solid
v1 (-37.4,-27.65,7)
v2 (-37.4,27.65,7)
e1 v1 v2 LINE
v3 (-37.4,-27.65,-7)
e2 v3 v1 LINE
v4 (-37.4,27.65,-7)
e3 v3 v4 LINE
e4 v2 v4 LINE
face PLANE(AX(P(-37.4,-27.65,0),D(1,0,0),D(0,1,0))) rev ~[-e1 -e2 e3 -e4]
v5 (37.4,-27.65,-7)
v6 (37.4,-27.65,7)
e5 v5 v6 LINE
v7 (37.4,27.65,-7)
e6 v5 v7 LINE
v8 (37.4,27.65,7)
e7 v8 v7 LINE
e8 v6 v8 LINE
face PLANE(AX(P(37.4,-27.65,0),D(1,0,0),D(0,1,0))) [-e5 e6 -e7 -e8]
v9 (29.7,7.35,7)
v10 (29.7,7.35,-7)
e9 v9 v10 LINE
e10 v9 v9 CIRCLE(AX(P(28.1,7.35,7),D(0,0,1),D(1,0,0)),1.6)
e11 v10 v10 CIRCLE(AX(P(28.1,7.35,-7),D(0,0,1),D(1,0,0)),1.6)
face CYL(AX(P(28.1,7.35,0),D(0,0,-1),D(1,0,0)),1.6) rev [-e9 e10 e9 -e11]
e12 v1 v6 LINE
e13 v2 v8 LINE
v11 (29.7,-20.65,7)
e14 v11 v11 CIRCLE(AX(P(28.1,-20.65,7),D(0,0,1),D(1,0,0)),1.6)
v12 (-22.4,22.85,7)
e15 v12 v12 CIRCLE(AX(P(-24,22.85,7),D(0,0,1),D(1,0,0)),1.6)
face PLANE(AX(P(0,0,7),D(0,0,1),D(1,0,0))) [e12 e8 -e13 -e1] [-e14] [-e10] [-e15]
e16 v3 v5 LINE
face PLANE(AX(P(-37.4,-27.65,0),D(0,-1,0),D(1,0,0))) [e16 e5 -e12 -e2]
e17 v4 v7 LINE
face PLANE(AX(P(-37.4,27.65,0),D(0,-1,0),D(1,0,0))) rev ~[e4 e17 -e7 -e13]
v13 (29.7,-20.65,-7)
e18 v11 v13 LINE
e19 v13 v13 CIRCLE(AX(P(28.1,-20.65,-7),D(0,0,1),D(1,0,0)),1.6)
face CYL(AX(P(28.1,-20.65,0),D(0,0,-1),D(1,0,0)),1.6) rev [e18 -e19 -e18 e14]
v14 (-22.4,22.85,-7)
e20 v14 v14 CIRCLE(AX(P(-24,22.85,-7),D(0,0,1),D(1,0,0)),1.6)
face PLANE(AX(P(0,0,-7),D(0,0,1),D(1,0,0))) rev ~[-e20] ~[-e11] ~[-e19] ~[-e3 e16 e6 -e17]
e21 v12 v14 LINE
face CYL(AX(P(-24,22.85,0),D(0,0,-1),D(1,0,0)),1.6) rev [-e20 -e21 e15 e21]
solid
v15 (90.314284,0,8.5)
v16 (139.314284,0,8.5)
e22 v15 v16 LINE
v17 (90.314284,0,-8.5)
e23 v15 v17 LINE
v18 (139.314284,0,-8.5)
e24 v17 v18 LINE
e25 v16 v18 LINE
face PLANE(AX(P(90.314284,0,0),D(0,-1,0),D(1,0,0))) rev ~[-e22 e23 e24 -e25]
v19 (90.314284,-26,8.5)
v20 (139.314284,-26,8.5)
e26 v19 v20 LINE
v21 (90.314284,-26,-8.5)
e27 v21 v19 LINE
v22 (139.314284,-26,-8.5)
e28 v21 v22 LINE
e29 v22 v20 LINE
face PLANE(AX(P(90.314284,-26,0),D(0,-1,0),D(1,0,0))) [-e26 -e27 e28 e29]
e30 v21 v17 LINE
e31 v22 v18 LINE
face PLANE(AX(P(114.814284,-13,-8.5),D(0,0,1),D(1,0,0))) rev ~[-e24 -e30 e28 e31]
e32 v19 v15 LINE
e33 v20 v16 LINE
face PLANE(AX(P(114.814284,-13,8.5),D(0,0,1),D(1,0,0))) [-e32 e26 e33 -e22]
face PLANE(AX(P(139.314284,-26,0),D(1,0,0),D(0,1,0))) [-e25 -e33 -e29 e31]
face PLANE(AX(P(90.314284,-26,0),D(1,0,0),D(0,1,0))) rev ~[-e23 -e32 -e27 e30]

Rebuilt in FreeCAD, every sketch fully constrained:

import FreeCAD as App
import Part
import Sketcher

V = App.Vector

doc = App.newDocument("Part")
params = doc.addObject("Spreadsheet::Sheet", "Params")
for row, (alias, value) in enumerate([
    ("sketch1_diameter", "3.2 mm"),
    ("sketch1_width", "74.8 mm"),
    ("sketch1_height", "55.3 mm"),
    ("pad1_length", "14 mm"),
    ("sketch2_width", "49 mm"),
    ("sketch2_height", "26 mm"),
    ("pad2_length", "17 mm"),
], start=1):
    params.set(f"A{row}", alias)
    params.set(f"B{row}", "=" + value)
    params.setAlias(f"B{row}", alias)

body = doc.addObject("PartDesign::Body", "Body")

sketch1 = body.newObject("Sketcher::SketchObject", "Sketch")
sketch1.AttachmentSupport = (doc.getObject("XY_Plane"), [""])
sketch1.MapMode = "FlatFace"
sketch1.addGeometry([
    Part.LineSegment(V(-37.4, 27.6, 0), V(-37.4, -27.6, 0)),
    Part.LineSegment(V(-37.4, -27.6, 0), V(37.4, -27.6, 0)),
    Part.LineSegment(V(37.4, -27.6, 0), V(37.4, 27.6, 0)),
    Part.LineSegment(V(37.4, 27.6, 0), V(-37.4, 27.6, 0)),
    Part.Circle(V(28.1, -20.6, 0), V(0, 0, 1), 1.6),
    Part.Circle(V(-24, 22.9, 0), V(0, 0, 1), 1.6),
    Part.Circle(V(28.1, 7.3, 0), V(0, 0, 1), 1.6),
], False)
sketch1.addConstraint([
    Sketcher.Constraint("Coincident", 0, 2, 1, 1),
    Sketcher.Constraint("Coincident", 1, 2, 2, 1),
    Sketcher.Constraint("Coincident", 2, 2, 3, 1),
    Sketcher.Constraint("Coincident", 3, 2, 0, 1),
    Sketcher.Constraint("Vertical", 0),
    Sketcher.Constraint("Horizontal", 1),
    Sketcher.Constraint("Vertical", 2),
    Sketcher.Constraint("Horizontal", 3),
    Sketcher.Constraint("Equal", 4, 5),
    Sketcher.Constraint("Equal", 5, 6),
    Sketcher.Constraint("Symmetric", 0, 2, 2, 2, -1, 1),
    Sketcher.Constraint("Vertical", 4, 3, 6, 3),
    Sketcher.Constraint("Diameter", 4, 3.2),
    Sketcher.Constraint("DistanceX", 1, 1, 1, 2, 74.8),
    Sketcher.Constraint("DistanceY", 0, 2, 0, 1, 55.3),
    Sketcher.Constraint("DistanceX", 5, 3, -1, 1, 24.0),
    Sketcher.Constraint("DistanceY", 4, 3, 6, 3, 28.0),
    Sketcher.Constraint("DistanceY", 0, 2, 4, 3, 7.0),
    Sketcher.Constraint("DistanceX", -1, 1, 4, 3, 28.1),
    Sketcher.Constraint("DistanceY", 4, 3, 5, 3, 43.5),
])
sketch1.setExpression("Constraints[12]", "Params.sketch1_diameter")
sketch1.setExpression("Constraints[13]", "Params.sketch1_width")
sketch1.setExpression("Constraints[14]", "Params.sketch1_height")
pad1 = body.newObject("PartDesign::Pad", "Pad")
pad1.Profile = sketch1
pad1.setExpression("Length", "Params.pad1_length")
pad1.Midplane = True
body2 = doc.addObject("PartDesign::Body", "Body001")

sketch2 = body2.newObject("Sketcher::SketchObject", "Sketch001")
sketch2.AttachmentSupport = (doc.getObject("XY_Plane001"), [""])
sketch2.MapMode = "FlatFace"
sketch2.addGeometry([
    Part.LineSegment(V(90, 0, 0), V(90, -26, 0)),
    Part.LineSegment(V(90, -26, 0), V(139, -26, 0)),
    Part.LineSegment(V(139, -26, 0), V(139, 0, 0)),
    Part.LineSegment(V(139, 0, 0), V(90, 0, 0)),
], False)
sketch2.addConstraint([
    Sketcher.Constraint("Coincident", 0, 2, 1, 1),
    Sketcher.Constraint("Coincident", 1, 2, 2, 1),
    Sketcher.Constraint("Coincident", 2, 2, 3, 1),
    Sketcher.Constraint("Coincident", 3, 2, 0, 1),
    Sketcher.Constraint("Vertical", 0),
    Sketcher.Constraint("Horizontal", 1),
    Sketcher.Constraint("Vertical", 2),
    Sketcher.Constraint("Horizontal", 3),
    Sketcher.Constraint("PointOnObject", 2, 2, -1),
    Sketcher.Constraint("DistanceX", 1, 1, 1, 2, 49.0),
    Sketcher.Constraint("DistanceY", 0, 2, 0, 1, 26.0),
    Sketcher.Constraint("DistanceX", -1, 1, 0, 2, 90.314284),
])
sketch2.setExpression("Constraints[9]", "Params.sketch2_width")
sketch2.setExpression("Constraints[10]", "Params.sketch2_height")
pad2 = body2.newObject("PartDesign::Pad", "Pad001")
pad2.Profile = sketch2
pad2.setExpression("Length", "Params.pad2_length")
pad2.Midplane = True

doc.recompute()
